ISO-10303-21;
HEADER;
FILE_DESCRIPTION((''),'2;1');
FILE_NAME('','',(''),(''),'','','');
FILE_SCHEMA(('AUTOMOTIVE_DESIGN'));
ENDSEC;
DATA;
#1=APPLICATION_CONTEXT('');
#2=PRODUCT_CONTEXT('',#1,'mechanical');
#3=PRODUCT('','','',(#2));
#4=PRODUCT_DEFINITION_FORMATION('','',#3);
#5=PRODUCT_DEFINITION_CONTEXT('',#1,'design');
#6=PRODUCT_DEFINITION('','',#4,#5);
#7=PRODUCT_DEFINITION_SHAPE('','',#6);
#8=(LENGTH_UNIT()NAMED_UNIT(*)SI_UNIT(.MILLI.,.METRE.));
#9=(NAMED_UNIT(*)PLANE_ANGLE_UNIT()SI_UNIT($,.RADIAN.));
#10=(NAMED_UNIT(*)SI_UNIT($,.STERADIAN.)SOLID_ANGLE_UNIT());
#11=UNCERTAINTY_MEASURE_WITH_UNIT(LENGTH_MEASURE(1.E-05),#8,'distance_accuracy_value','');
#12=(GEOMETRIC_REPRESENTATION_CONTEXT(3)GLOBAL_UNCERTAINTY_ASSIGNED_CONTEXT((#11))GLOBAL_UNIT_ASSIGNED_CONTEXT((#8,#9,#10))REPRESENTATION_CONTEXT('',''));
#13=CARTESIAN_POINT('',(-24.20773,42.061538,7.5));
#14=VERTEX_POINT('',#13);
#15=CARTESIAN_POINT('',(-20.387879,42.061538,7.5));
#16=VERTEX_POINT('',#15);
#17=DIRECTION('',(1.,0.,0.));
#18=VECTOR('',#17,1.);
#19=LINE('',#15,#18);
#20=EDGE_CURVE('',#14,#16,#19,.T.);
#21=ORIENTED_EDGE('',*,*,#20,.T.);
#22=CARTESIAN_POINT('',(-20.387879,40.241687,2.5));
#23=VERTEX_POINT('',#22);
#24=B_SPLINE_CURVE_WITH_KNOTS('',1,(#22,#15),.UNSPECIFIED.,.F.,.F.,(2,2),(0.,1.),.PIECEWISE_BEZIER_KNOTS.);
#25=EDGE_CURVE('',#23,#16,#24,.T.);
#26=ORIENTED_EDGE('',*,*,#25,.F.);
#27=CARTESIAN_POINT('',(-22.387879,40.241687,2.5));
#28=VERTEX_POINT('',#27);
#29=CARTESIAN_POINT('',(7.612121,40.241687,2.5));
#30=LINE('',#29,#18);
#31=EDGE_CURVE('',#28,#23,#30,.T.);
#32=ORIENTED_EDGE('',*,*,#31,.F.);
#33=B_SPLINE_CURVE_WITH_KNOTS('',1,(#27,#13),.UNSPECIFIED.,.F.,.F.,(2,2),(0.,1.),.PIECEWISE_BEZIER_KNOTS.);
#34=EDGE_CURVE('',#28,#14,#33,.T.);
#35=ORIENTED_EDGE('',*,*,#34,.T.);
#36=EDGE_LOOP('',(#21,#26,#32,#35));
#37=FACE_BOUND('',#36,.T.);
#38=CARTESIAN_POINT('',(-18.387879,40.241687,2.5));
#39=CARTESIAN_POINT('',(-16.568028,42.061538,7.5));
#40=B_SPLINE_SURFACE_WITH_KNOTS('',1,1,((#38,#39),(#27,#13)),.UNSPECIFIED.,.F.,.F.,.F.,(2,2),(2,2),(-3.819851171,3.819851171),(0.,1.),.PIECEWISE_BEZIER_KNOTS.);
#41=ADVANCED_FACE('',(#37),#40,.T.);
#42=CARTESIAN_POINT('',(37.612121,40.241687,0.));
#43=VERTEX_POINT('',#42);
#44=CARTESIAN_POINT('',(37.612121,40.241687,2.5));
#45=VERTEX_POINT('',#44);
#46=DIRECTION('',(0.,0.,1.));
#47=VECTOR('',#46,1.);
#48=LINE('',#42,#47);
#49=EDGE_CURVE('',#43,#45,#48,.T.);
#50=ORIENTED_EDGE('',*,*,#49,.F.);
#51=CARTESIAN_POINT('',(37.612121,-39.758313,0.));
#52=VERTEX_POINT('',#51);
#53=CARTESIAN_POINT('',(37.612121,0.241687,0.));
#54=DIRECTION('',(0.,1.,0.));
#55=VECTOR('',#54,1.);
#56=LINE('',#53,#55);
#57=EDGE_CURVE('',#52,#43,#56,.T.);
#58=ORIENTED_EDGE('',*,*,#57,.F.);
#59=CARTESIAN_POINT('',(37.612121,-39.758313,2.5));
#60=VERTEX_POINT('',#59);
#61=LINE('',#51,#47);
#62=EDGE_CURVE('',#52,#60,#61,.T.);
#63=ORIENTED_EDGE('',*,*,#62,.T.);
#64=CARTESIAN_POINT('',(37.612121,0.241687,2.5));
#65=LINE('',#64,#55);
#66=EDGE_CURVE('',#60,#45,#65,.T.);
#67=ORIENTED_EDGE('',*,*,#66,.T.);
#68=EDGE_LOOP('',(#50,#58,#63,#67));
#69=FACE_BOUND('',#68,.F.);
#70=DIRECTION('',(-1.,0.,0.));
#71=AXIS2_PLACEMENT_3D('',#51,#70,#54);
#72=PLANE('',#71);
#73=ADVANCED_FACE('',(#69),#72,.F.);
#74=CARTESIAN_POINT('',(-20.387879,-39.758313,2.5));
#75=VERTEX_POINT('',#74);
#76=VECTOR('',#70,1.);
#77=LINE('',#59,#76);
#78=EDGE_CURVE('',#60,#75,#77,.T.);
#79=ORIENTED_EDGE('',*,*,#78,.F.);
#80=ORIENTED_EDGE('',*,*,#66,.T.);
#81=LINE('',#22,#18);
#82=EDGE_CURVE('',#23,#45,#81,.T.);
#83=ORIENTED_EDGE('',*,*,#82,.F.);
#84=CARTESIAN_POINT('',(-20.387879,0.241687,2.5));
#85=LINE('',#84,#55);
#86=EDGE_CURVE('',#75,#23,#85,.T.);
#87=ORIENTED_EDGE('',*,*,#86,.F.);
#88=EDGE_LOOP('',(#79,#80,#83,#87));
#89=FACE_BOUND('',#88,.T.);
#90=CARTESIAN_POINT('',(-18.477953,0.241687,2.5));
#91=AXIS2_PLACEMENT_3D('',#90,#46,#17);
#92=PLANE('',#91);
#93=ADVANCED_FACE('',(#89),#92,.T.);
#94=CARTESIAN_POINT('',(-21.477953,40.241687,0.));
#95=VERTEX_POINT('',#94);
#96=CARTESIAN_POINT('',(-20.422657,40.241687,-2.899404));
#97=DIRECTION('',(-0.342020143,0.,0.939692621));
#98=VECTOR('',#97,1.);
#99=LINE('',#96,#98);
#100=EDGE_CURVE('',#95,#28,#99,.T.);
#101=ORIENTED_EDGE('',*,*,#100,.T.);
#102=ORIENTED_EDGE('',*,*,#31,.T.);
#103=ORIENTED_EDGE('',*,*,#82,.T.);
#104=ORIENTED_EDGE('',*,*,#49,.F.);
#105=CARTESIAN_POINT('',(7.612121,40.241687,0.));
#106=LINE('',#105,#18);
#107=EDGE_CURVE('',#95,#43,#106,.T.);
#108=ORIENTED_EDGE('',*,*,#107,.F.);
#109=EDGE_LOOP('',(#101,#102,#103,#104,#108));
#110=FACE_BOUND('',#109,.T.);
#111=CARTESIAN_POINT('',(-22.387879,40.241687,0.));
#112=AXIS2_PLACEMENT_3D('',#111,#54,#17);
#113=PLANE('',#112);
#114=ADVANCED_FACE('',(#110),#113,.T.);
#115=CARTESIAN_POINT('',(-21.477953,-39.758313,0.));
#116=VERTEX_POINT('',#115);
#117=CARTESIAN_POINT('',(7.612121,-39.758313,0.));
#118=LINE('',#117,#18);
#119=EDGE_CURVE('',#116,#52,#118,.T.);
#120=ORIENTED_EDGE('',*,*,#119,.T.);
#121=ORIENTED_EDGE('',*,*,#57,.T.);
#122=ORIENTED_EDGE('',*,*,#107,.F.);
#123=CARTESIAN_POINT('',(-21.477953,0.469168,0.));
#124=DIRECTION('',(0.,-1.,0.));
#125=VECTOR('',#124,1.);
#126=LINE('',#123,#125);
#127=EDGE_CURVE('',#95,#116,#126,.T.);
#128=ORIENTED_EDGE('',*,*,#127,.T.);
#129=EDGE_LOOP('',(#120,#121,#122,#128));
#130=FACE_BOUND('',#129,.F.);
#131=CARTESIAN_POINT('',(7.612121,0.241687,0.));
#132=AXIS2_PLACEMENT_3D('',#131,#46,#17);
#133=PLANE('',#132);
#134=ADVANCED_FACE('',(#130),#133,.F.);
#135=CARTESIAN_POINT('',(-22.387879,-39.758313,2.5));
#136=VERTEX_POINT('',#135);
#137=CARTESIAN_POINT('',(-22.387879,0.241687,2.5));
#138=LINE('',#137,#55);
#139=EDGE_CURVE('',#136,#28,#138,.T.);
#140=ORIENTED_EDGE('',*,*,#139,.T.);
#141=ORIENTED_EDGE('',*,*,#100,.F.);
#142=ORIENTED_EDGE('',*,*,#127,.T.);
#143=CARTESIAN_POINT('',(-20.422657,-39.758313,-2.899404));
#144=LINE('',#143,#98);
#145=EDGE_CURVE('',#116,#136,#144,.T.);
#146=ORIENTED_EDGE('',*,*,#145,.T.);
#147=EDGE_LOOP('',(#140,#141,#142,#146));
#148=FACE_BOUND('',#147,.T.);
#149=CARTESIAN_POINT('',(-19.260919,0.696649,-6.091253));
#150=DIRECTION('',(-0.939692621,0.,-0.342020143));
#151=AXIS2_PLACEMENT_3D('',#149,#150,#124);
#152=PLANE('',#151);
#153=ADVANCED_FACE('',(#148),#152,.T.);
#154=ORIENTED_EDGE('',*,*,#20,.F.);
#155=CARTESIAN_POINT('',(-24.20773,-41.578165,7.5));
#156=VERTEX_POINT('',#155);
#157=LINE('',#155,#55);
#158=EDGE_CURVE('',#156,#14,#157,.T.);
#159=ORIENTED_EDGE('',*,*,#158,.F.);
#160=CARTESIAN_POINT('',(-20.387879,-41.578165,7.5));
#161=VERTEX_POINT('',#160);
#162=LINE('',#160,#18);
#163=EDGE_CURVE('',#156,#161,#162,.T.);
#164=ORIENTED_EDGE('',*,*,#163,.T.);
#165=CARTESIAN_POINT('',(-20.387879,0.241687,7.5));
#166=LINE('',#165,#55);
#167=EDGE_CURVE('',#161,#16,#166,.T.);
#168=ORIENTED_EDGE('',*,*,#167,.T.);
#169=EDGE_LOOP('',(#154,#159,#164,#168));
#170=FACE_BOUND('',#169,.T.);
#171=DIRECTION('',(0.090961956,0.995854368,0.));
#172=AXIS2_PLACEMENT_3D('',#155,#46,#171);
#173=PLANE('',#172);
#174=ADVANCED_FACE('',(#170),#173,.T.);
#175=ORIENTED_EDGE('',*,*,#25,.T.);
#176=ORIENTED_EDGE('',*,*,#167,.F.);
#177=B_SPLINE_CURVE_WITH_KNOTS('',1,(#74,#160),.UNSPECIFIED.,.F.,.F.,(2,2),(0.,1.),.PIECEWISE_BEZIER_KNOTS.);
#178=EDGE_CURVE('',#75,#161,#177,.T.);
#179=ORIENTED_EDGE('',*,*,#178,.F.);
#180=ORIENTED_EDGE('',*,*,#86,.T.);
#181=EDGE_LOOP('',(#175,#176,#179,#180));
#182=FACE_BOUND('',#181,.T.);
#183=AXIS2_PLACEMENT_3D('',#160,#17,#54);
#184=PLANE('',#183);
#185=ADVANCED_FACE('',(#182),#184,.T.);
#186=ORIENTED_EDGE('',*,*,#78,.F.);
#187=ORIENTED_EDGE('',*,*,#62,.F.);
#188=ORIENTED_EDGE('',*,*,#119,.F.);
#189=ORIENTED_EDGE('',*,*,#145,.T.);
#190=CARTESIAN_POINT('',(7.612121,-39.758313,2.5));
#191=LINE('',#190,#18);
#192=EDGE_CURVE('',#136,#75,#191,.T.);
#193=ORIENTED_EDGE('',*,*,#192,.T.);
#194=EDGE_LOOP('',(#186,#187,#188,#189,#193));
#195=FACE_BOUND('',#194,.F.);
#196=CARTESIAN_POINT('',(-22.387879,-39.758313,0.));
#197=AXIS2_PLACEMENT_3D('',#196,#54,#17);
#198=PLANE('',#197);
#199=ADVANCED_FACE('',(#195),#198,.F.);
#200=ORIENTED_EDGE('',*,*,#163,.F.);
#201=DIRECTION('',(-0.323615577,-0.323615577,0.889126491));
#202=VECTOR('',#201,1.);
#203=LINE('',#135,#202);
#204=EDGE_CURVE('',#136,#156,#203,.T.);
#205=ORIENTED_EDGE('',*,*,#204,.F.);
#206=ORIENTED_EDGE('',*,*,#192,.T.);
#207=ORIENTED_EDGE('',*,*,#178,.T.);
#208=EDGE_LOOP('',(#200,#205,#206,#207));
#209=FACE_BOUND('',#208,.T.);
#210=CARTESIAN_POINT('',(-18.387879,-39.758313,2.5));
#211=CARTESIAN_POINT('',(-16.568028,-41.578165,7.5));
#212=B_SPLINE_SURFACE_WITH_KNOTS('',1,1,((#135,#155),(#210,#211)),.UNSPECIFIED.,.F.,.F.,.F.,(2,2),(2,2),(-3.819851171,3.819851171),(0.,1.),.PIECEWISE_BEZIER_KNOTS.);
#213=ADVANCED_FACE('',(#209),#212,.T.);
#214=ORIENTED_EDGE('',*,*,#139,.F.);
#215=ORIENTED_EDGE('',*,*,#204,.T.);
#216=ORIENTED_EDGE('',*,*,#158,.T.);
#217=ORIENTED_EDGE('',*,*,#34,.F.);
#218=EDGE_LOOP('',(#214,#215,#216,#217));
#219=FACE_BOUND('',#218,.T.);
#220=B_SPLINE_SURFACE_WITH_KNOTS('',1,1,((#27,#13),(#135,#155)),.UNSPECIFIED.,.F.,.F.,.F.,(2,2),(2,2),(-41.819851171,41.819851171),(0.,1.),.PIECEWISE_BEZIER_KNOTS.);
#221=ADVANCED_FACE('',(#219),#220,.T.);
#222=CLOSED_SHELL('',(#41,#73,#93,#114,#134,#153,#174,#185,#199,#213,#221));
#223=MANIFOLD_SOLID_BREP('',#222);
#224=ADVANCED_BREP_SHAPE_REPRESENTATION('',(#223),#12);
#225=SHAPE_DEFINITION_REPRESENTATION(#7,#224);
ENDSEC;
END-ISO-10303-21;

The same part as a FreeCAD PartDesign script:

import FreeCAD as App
import Part
import Sketcher
from FreeCAD import Vector


def add_polygon(sketch, points):
    """Adds a closed chain of lines whose ends are joined by coincident constraints."""
    first, n = sketch.GeometryCount, len(points)
    for a, b in zip(points, points[1:] + points[:1]):
        sketch.addGeometry(Part.LineSegment(App.Vector(*a, 0), App.Vector(*b, 0)), False)
    for i in range(n):
        sketch.addConstraint(Sketcher.Constraint("Coincident", first + i, 2, first + (i + 1) % n, 1))

doc = App.newDocument("Part")
body = doc.addObject("PartDesign::Body", "Body")

sketch1 = doc.addObject("Sketcher::SketchObject", "Sketch")
body.addObject(sketch1)
sketch1.AttachmentSupport = (doc.XY_Plane, [""])
sketch1.MapMode = "FlatFace"
add_polygon(sketch1, [(-22, 40), (-22, -40), (38, -40), (38, 40)])
sketch1.addConstraint([
    Sketcher.Constraint("Vertical", 0),
    Sketcher.Constraint("Horizontal", 1),
    Sketcher.Constraint("Vertical", 2),
    Sketcher.Constraint("Horizontal", 3),
    Sketcher.Constraint("DistanceX", 1, 1, 1, 2, 60.0),
    Sketcher.Constraint("DistanceY", 0, 2, 0, 1, 80.0),
    Sketcher.Constraint("DistanceX", 0, 2, -1, 1, 22.387879),
    Sketcher.Constraint("DistanceY", 0, 2, -1, 1, 39.758313),
])
pad1 = doc.addObject("PartDesign::Pad", "Pad")
body.addObject(pad1)
pad1.Profile = sketch1
pad1.Length = 2.5

sketch2 = doc.addObject("Sketcher::SketchObject", "Sketch001")
body.addObject(sketch2)
sketch2.AttachmentSupport = (doc.XY_Plane, [""])
sketch2.MapMode = "FlatFace"
sketch2.AttachmentOffset = App.Placement(Vector(0, 0, 2.5), App.Rotation())
add_polygon(sketch2, [(-22.4, 40.2), (-22.4, -39.8), (-18.4, -39.8), (-18.4, 40.2)])
sketch2.addConstraint([
    Sketcher.Constraint("Vertical", 0),
    Sketcher.Constraint("Horizontal", 1),
    Sketcher.Constraint("Vertical", 2),
    Sketcher.Constraint("Horizontal", 3),
    Sketcher.Constraint("DistanceX", 1, 1, 1, 2, 4.0),
    Sketcher.Constraint("DistanceY", 0, 2, 0, 1, 80.0),
    Sketcher.Constraint("DistanceX", 0, 2, -1, 1, 22.387879),
    Sketcher.Constraint("DistanceY", 0, 2, -1, 1, 39.758313),
])
pad2 = doc.addObject("PartDesign::Pad", "Pad001")
body.addObject(pad2)
pad2.Profile = sketch2
pad2.Length = 5
pad2.TaperAngle = 20

sketch3 = doc.addObject("Sketcher::SketchObject", "Sketch002")
body.addObject(sketch3)
sketch3.AttachmentSupport = (doc.XY_Plane, [""])
sketch3.MapMode = "FlatFace"
sketch3.AttachmentOffset = App.Placement(Vector(0, 0, 7.5), App.Rotation())
add_polygon(sketch3, [(-20.4, 42.1), (-20.4, -41.6), (-16.6, -41.6), (-16.6, 42.1)])
sketch3.addConstraint([
    Sketcher.Constraint("Vertical", 0),
    Sketcher.Constraint("Horizontal", 1),
    Sketcher.Constraint("Vertical", 2),
    Sketcher.Constraint("Horizontal", 3),
    Sketcher.Constraint("DistanceX", 1, 1, 1, 2, 3.819851),
    Sketcher.Constraint("DistanceY", 0, 2, 0, 1, 83.639702),
    Sketcher.Constraint("DistanceX", 0, 2, -1, 1, 20.387879),
    Sketcher.Constraint("DistanceY", 0, 2, -1, 1, 41.578165),
])
pocket1 = doc.addObject("PartDesign::Pocket", "Pocket")
body.addObject(pocket1)
pocket1.Profile = sketch3
pocket1.Length = 5

sketch4 = doc.addObject("Sketcher::SketchObject", "Sketch003")
body.addObject(sketch4)
sketch4.Placement = App.Placement(Vector(-18.96551, 0, -6.902881), App.Rotation(Vector(0, -1, 0), Vector(-0.342020143, 0, 0.939692621), Vector(-0.939692621, 0, -0.342020143), "ZXY"))
add_polygon(sketch4, [(-42, 15), (-42, -14), (41, -14), (41, 15)])
sketch4.addConstraint([
    Sketcher.Constraint("Vertical", 0),
    Sketcher.Constraint("Horizontal", 1),
    Sketcher.Constraint("Vertical", 2),
    Sketcher.Constraint("Horizontal", 3),
    Sketcher.Constraint("DistanceY", 0, 2, 0, 1, 28.927018),
    Sketcher.Constraint("DistanceX", 1, 1, 1, 2, 82.729777),
    Sketcher.Constraint("DistanceX", -1, 1, 1, 2, 40.668239),
    Sketcher.Constraint("DistanceY", 0, 2, -1, 1, 13.599792),
])
pocket2 = doc.addObject("PartDesign::Pocket", "Pocket001")
body.addObject(pocket2)
pocket2.Profile = sketch4
pocket2.Length = 25
pocket2.Reversed = True

doc.recompute()
